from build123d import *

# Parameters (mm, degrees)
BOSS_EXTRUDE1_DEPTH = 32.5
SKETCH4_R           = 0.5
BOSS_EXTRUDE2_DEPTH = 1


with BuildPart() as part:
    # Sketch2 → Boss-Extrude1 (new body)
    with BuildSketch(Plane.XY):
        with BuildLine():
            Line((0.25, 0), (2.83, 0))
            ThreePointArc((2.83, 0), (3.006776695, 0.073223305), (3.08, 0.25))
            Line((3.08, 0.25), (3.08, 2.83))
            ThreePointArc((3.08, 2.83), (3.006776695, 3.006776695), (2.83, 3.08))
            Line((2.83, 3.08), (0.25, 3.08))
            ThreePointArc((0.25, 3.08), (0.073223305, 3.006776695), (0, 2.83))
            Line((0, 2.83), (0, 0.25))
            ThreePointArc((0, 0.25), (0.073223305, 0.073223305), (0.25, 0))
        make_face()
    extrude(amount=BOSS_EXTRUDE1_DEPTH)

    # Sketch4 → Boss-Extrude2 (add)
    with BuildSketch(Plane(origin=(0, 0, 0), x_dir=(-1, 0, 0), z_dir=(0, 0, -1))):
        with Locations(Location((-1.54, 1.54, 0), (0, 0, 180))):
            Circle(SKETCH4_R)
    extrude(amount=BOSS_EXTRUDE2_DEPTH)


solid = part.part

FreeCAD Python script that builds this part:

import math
import FreeCAD as App
import Part
import Sketcher
Q = App.Units.Quantity

doc = App.newDocument("Part")
body = doc.addObject("PartDesign::Body", "Body")

# Sketch on XY plane
sketch1 = body.newObject("Sketcher::SketchObject", "Sketch")
sketch1.AttachmentSupport = (doc.getObject("XY_Plane"), [""])
sketch1.MapMode = "FlatFace"
sketch1.addGeometry(Part.LineSegment(App.Vector(0.25, 0, 0), App.Vector(2.83, 0, 0)), False)
sketch1.addGeometry(Part.ArcOfCircle(Part.Circle(App.Vector(2.83, 0.25, 0), App.Vector(0, 0, 1), 0.25), math.radians(-90), math.radians(0)), False)
sketch1.addGeometry(Part.LineSegment(App.Vector(3.08, 0.25, 0), App.Vector(3.08, 2.83, 0)), False)
sketch1.addGeometry(Part.ArcOfCircle(Part.Circle(App.Vector(2.83, 2.83, 0), App.Vector(0, 0, 1), 0.25), math.radians(0), math.radians(90)), False)
sketch1.addGeometry(Part.LineSegment(App.Vector(2.83, 3.08, 0), App.Vector(0.25, 3.08, 0)), False)
sketch1.addGeometry(Part.ArcOfCircle(Part.Circle(App.Vector(0.25, 2.83, 0), App.Vector(0, 0, 1), 0.25), math.radians(90), math.radians(180)), False)
sketch1.addGeometry(Part.LineSegment(App.Vector(0, 2.83, 0), App.Vector(0, 0.25, 0)), False)
sketch1.addGeometry(Part.ArcOfCircle(Part.Circle(App.Vector(0.25, 0.25, 0), App.Vector(0, 0, 1), 0.25), math.radians(-180), math.radians(-90)), False)
sketch1.addConstraint(Sketcher.Constraint("Tangent", 0, 2, 1, 1))
sketch1.addConstraint(Sketcher.Constraint("Tangent", 1, 2, 2, 1))
sketch1.addConstraint(Sketcher.Constraint("Tangent", 2, 2, 3, 1))
sketch1.addConstraint(Sketcher.Constraint("Tangent", 3, 2, 4, 1))
sketch1.addConstraint(Sketcher.Constraint("Tangent", 4, 2, 5, 1))
sketch1.addConstraint(Sketcher.Constraint("Tangent", 5, 2, 6, 1))
sketch1.addConstraint(Sketcher.Constraint("Tangent", 6, 2, 7, 1))
sketch1.addConstraint(Sketcher.Constraint("Tangent", 7, 2, 0, 1))
sketch1.addConstraint(Sketcher.Constraint("Horizontal", 0))
sketch1.addConstraint(Sketcher.Constraint("Vertical", 2))
sketch1.addConstraint(Sketcher.Constraint("Horizontal", 4))
sketch1.addConstraint(Sketcher.Constraint("Vertical", 6))
sketch1.addConstraint(Sketcher.Constraint("Equal", 1, 3))
sketch1.addConstraint(Sketcher.Constraint("Equal", 3, 5))
sketch1.addConstraint(Sketcher.Constraint("Equal", 5, 7))
sketch1.addConstraint(Sketcher.Constraint("PointOnObject", 0, 2, -1))
sketch1.addConstraint(Sketcher.Constraint("PointOnObject", 5, 2, -2))
sketch1.addConstraint(Sketcher.Constraint("Equal", 4, 2))
sketch1.addConstraint(Sketcher.Constraint("Radius", 1, Q("0.25 mm")))
sketch1.addConstraint(Sketcher.Constraint("DistanceX", 0, 1, 0, 2, Q("2.58 mm")))
pad1 = body.newObject("PartDesign::Pad", "Pad")
pad1.Profile = sketch1
pad1.Length = 32.5

# Sketch on XY plane
sketch2 = body.newObject("Sketcher::SketchObject", "Sketch001")
sketch2.AttachmentSupport = (doc.getObject("XY_Plane"), [""])
sketch2.MapMode = "FlatFace"
sketch2.addGeometry(Part.Circle(App.Vector(1.5, 1.5, 0), App.Vector(0, 0, 1), 0.5), False)
sketch2.addConstraint(Sketcher.Constraint("Diameter", 0, Q("1 mm")))
sketch2.addConstraint(Sketcher.Constraint("DistanceX", -1, 1, 0, 3, Q("1.54 mm")))
sketch2.addConstraint(Sketcher.Constraint("DistanceY", -1, 1, 0, 3, Q("1.54 mm")))
pad2 = body.newObject("PartDesign::Pad", "Pad001")
pad2.Profile = sketch2
pad2.Length = 1
pad2.Reversed = True

doc.recompute()
